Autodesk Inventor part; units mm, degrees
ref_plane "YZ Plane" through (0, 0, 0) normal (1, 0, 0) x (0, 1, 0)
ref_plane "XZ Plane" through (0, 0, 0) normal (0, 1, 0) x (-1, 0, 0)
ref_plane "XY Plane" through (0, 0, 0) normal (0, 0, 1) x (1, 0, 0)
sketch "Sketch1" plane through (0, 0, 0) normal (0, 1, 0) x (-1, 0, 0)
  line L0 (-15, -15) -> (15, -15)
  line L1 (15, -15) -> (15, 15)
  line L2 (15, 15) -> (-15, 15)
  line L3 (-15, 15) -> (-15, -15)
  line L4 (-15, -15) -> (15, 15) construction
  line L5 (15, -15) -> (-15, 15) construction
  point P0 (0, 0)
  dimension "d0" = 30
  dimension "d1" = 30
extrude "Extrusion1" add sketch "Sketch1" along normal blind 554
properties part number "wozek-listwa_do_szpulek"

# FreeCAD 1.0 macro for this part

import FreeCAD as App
import Part
import Sketcher
from FreeCAD import Vector
Q = App.Units.Quantity

doc = App.newDocument("Part")
body = doc.addObject("PartDesign::Body", "Body")

sketch1 = body.newObject("Sketcher::SketchObject", "Sketch")
sketch1.AttachmentSupport = (doc.getObject("XZ_Plane"), [""])
sketch1.MapMode = "FlatFace"
sketch1.addGeometry([
    Part.LineSegment(Vector(15, 15, 0), Vector(15, -15, 0)),
    Part.LineSegment(Vector(15, -15, 0), Vector(-15, -15, 0)),
    Part.LineSegment(Vector(-15, -15, 0), Vector(-15, 15, 0)),
    Part.LineSegment(Vector(-15, 15, 0), Vector(15, 15, 0)),
], False)
sketch1.addConstraint([
    Sketcher.Constraint("Coincident", 0, 2, 1, 1),
    Sketcher.Constraint("Coincident", 1, 2, 2, 1),
    Sketcher.Constraint("Coincident", 2, 2, 3, 1),
    Sketcher.Constraint("Coincident", 3, 2, 0, 1),
    Sketcher.Constraint("Vertical", 0),
    Sketcher.Constraint("Horizontal", 1),
    Sketcher.Constraint("Vertical", 2),
    Sketcher.Constraint("Horizontal", 3),
    Sketcher.Constraint("Symmetric", 0, 2, 2, 2, -1, 1),
    Sketcher.Constraint("Equal", 3, 0),
    Sketcher.Constraint("DistanceX", 1, 2, 1, 1, Q("30 mm")),
])
pad1 = body.newObject("PartDesign::Pad", "Pad")
pad1.Profile = sketch1
pad1.Length = 554
pad1.Reversed = True

doc.recompute()
